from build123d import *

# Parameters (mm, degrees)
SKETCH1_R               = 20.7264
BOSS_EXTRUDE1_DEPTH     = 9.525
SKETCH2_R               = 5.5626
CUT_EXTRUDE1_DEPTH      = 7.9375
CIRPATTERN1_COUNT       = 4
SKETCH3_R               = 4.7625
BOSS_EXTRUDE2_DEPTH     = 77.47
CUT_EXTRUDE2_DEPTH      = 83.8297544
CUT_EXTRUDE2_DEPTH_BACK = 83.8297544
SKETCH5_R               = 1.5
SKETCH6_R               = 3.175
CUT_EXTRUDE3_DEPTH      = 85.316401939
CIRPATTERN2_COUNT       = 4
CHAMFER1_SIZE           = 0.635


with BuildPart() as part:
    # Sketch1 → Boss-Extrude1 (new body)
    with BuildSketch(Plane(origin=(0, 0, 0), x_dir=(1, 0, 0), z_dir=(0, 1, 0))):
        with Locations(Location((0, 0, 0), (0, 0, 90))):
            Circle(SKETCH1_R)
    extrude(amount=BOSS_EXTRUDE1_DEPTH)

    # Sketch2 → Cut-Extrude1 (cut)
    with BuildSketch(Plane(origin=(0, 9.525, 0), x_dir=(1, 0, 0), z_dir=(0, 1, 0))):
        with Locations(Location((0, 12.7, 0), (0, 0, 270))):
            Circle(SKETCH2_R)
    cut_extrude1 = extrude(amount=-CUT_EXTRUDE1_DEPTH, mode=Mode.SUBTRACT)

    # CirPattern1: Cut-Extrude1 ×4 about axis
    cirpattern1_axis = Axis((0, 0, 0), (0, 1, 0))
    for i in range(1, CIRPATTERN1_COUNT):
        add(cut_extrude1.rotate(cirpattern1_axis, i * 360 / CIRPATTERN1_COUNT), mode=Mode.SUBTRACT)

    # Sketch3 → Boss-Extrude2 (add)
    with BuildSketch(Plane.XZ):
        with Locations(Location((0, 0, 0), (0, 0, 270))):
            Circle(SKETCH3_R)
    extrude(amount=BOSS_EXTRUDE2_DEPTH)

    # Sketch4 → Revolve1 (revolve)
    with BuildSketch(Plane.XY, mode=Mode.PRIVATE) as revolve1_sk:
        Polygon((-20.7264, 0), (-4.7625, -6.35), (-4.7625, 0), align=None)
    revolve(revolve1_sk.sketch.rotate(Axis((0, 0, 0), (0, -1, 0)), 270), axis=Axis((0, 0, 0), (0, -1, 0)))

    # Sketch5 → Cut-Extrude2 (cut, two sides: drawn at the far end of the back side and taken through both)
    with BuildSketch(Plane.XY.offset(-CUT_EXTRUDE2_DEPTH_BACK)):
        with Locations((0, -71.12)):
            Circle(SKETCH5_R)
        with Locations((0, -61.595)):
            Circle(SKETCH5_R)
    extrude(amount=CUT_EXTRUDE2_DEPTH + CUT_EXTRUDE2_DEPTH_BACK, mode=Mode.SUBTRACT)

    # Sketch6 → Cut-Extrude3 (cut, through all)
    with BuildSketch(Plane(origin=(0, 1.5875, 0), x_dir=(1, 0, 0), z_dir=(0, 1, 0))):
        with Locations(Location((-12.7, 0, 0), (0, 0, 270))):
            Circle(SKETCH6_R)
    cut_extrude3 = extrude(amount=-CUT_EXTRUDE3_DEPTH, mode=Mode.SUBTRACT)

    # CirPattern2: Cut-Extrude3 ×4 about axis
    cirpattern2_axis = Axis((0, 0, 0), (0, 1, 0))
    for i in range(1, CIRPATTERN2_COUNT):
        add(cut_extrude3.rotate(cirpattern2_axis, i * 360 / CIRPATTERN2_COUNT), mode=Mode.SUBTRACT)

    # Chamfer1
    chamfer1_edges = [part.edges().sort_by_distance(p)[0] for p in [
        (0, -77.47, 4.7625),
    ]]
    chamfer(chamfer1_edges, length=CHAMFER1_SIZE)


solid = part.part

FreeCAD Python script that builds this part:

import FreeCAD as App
import Part
import Sketcher

V = App.Vector
Q = App.Units.Quantity


def edges_at(feature, points):
    """Names of the edges that pass closest to the given points."""
    edges = feature.Shape.Edges
    near = lambda p: min(range(len(edges)), key=lambda i: edges[i].distToShape(Part.Vertex(*p))[0])
    return sorted({f"Edge{near(p) + 1}" for p in points})


def add_polygon(sketch, points):
    """Adds a closed chain of lines whose ends are joined by coincident constraints."""
    first, n = sketch.GeometryCount, len(points)
    for a, b in zip(points, points[1:] + points[:1]):
        sketch.addGeometry(Part.LineSegment(App.Vector(*a, 0), App.Vector(*b, 0)), False)
    for i in range(n):
        sketch.addConstraint(Sketcher.Constraint("Coincident", first + i, 2, first + (i + 1) % n, 1))

doc = App.newDocument("Part")
body = doc.addObject("PartDesign::Body", "Body")

sketch1 = body.newObject("Sketcher::SketchObject", "Sketch")
sketch1.AttachmentSupport = (doc.getObject("XZ_Plane"), [""])
sketch1.MapMode = "FlatFace"
sketch1.addGeometry(Part.Circle(V(0, 0, 0), V(0, 0, 1), 21), False)
sketch1.addConstraint([
    Sketcher.Constraint("Coincident", 0, 3, -1, 1),
    Sketcher.Constraint("Diameter", 0, Q("1.632 in")),
])
pad1 = body.newObject("PartDesign::Pad", "Pad")
pad1.Profile = sketch1
pad1.Length = Q("0.375 in")
pad1.Reversed = True

sketch2 = body.newObject("Sketcher::SketchObject", "Sketch001")
sketch2.AttachmentSupport = (doc.getObject("XZ_Plane"), [""])
sketch2.MapMode = "FlatFace"
sketch2.AttachmentOffset = App.Placement(V(0, 0, -0.375 * 25.4), App.Rotation())
sketch2.addGeometry(Part.Circle(V(0, -13, 0), V(0, 0, 1), 6), False)
sketch2.addConstraint([
    Sketcher.Constraint("PointOnObject", 0, 3, -2),
    Sketcher.Constraint("Diameter", 0, Q("0.438 in")),
    Sketcher.Constraint("DistanceY", 0, 3, -1, 1, Q("0.5 in")),
])
pocket1 = body.newObject("PartDesign::Pocket", "Pocket")
pocket1.Profile = sketch2
pocket1.Length = Q("0.3125 in")
pocket1.Reversed = True
doc.recompute()

polarpattern = body.newObject("PartDesign::PolarPattern", "PolarPattern")
polarpattern.Originals = [pocket1]
polarpattern.Axis = (doc.getObject("Y_Axis"), [""])
polarpattern.Angle = 360
polarpattern.Occurrences = 4
body.Tip = polarpattern

sketch3 = body.newObject("Sketcher::SketchObject", "Sketch002")
sketch3.AttachmentSupport = (doc.getObject("XZ_Plane"), [""])
sketch3.MapMode = "FlatFace"
sketch3.addGeometry(Part.Circle(V(0, 0, 0), V(0, 0, 1), 4.8), False)
sketch3.addConstraint([
    Sketcher.Constraint("Coincident", 0, 3, -1, 1),
    Sketcher.Constraint("Diameter", 0, Q("0.375 in")),
])
pad2 = body.newObject("PartDesign::Pad", "Pad001")
pad2.Profile = sketch3
pad2.Length = Q("3.05 in")

sketch4 = body.newObject("Sketcher::SketchObject", "Sketch003")
sketch4.AttachmentSupport = (doc.getObject("XY_Plane"), [""])
sketch4.MapMode = "FlatFace"
add_polygon(sketch4, [(-21, 0), (-5, -6), (-5, 0)])
sketch4.addConstraint([
    Sketcher.Constraint("Vertical", 1),
    Sketcher.Constraint("Horizontal", 2),
    Sketcher.Constraint("PointOnObject", 1, 2, -1),
    Sketcher.Constraint("DistanceY", 1, 1, 1, 2, Q("0.25 in")),
    Sketcher.Constraint("DistanceX", 2, 2, 2, 1, Q("0.6285 in")),
    Sketcher.Constraint("DistanceX", 0, 2, -1, 1, Q("0.1875 in")),
])
revolution = body.newObject("PartDesign::Revolution", "Revolution")
revolution.Profile = sketch4
revolution.ReferenceAxis = (sketch4, ["V_Axis"])
revolution.Angle = 360

sketch5 = body.newObject("Sketcher::SketchObject", "Sketch004")
sketch5.AttachmentSupport = (doc.getObject("XY_Plane"), [""])
sketch5.MapMode = "FlatFace"
sketch5.addGeometry([
    Part.Circle(V(0, -71.1, 0), V(0, 0, 1), 1.5),
    Part.Circle(V(0, -61.6, 0), V(0, 0, 1), 1.5),
], False)
sketch5.addConstraint([
    Sketcher.Constraint("Equal", 0, 1),
    Sketcher.Constraint("PointOnObject", 0, 3, -2),
    Sketcher.Constraint("PointOnObject", 1, 3, -2),
    Sketcher.Constraint("DistanceY", 0, 3, -1, 1, Q("2.8 in")),
    Sketcher.Constraint("Diameter", 0, Q("3 mm")),
    Sketcher.Constraint("DistanceY", 1, 3, -1, 1, Q("2.425 in")),
])
pocket2 = body.newObject("PartDesign::Pocket", "Pocket001")
pocket2.Profile = sketch5
pocket2.Type = "ThroughAll"
pocket2.Midplane = True

sketch6 = body.newObject("Sketcher::SketchObject", "Sketch005")
sketch6.AttachmentSupport = (doc.getObject("XZ_Plane"), [""])
sketch6.MapMode = "FlatFace"
sketch6.AttachmentOffset = App.Placement(V(0, 0, -0.0625 * 25.4), App.Rotation())
sketch6.addGeometry(Part.Circle(V(-12.7, 0, 0), V(0, 0, 1), 3.2), False)
sketch6.addConstraint([
    Sketcher.Constraint("PointOnObject", 0, 3, -1),
    Sketcher.Constraint("Diameter", 0, Q("0.25 in")),
    Sketcher.Constraint("DistanceX", 0, 3, -1, 1, Q("0.5 in")),
])
pocket3 = body.newObject("PartDesign::Pocket", "Pocket002")
pocket3.Profile = sketch6
pocket3.Type = "ThroughAll"
pocket3.Reversed = True
doc.recompute()

polarpattern2 = body.newObject("PartDesign::PolarPattern", "PolarPattern001")
polarpattern2.Originals = [pocket3]
polarpattern2.Axis = (doc.getObject("Y_Axis"), [""])
polarpattern2.Angle = 360
polarpattern2.Occurrences = 4
body.Tip = polarpattern2
doc.recompute()

chamfer = body.newObject("PartDesign::Chamfer", "Chamfer")
chamfer.Base = (polarpattern2, edges_at(polarpattern2, [(0, -77.47, 4.763)]))
chamfer.Size = Q("0.025 in")

doc.recompute()
